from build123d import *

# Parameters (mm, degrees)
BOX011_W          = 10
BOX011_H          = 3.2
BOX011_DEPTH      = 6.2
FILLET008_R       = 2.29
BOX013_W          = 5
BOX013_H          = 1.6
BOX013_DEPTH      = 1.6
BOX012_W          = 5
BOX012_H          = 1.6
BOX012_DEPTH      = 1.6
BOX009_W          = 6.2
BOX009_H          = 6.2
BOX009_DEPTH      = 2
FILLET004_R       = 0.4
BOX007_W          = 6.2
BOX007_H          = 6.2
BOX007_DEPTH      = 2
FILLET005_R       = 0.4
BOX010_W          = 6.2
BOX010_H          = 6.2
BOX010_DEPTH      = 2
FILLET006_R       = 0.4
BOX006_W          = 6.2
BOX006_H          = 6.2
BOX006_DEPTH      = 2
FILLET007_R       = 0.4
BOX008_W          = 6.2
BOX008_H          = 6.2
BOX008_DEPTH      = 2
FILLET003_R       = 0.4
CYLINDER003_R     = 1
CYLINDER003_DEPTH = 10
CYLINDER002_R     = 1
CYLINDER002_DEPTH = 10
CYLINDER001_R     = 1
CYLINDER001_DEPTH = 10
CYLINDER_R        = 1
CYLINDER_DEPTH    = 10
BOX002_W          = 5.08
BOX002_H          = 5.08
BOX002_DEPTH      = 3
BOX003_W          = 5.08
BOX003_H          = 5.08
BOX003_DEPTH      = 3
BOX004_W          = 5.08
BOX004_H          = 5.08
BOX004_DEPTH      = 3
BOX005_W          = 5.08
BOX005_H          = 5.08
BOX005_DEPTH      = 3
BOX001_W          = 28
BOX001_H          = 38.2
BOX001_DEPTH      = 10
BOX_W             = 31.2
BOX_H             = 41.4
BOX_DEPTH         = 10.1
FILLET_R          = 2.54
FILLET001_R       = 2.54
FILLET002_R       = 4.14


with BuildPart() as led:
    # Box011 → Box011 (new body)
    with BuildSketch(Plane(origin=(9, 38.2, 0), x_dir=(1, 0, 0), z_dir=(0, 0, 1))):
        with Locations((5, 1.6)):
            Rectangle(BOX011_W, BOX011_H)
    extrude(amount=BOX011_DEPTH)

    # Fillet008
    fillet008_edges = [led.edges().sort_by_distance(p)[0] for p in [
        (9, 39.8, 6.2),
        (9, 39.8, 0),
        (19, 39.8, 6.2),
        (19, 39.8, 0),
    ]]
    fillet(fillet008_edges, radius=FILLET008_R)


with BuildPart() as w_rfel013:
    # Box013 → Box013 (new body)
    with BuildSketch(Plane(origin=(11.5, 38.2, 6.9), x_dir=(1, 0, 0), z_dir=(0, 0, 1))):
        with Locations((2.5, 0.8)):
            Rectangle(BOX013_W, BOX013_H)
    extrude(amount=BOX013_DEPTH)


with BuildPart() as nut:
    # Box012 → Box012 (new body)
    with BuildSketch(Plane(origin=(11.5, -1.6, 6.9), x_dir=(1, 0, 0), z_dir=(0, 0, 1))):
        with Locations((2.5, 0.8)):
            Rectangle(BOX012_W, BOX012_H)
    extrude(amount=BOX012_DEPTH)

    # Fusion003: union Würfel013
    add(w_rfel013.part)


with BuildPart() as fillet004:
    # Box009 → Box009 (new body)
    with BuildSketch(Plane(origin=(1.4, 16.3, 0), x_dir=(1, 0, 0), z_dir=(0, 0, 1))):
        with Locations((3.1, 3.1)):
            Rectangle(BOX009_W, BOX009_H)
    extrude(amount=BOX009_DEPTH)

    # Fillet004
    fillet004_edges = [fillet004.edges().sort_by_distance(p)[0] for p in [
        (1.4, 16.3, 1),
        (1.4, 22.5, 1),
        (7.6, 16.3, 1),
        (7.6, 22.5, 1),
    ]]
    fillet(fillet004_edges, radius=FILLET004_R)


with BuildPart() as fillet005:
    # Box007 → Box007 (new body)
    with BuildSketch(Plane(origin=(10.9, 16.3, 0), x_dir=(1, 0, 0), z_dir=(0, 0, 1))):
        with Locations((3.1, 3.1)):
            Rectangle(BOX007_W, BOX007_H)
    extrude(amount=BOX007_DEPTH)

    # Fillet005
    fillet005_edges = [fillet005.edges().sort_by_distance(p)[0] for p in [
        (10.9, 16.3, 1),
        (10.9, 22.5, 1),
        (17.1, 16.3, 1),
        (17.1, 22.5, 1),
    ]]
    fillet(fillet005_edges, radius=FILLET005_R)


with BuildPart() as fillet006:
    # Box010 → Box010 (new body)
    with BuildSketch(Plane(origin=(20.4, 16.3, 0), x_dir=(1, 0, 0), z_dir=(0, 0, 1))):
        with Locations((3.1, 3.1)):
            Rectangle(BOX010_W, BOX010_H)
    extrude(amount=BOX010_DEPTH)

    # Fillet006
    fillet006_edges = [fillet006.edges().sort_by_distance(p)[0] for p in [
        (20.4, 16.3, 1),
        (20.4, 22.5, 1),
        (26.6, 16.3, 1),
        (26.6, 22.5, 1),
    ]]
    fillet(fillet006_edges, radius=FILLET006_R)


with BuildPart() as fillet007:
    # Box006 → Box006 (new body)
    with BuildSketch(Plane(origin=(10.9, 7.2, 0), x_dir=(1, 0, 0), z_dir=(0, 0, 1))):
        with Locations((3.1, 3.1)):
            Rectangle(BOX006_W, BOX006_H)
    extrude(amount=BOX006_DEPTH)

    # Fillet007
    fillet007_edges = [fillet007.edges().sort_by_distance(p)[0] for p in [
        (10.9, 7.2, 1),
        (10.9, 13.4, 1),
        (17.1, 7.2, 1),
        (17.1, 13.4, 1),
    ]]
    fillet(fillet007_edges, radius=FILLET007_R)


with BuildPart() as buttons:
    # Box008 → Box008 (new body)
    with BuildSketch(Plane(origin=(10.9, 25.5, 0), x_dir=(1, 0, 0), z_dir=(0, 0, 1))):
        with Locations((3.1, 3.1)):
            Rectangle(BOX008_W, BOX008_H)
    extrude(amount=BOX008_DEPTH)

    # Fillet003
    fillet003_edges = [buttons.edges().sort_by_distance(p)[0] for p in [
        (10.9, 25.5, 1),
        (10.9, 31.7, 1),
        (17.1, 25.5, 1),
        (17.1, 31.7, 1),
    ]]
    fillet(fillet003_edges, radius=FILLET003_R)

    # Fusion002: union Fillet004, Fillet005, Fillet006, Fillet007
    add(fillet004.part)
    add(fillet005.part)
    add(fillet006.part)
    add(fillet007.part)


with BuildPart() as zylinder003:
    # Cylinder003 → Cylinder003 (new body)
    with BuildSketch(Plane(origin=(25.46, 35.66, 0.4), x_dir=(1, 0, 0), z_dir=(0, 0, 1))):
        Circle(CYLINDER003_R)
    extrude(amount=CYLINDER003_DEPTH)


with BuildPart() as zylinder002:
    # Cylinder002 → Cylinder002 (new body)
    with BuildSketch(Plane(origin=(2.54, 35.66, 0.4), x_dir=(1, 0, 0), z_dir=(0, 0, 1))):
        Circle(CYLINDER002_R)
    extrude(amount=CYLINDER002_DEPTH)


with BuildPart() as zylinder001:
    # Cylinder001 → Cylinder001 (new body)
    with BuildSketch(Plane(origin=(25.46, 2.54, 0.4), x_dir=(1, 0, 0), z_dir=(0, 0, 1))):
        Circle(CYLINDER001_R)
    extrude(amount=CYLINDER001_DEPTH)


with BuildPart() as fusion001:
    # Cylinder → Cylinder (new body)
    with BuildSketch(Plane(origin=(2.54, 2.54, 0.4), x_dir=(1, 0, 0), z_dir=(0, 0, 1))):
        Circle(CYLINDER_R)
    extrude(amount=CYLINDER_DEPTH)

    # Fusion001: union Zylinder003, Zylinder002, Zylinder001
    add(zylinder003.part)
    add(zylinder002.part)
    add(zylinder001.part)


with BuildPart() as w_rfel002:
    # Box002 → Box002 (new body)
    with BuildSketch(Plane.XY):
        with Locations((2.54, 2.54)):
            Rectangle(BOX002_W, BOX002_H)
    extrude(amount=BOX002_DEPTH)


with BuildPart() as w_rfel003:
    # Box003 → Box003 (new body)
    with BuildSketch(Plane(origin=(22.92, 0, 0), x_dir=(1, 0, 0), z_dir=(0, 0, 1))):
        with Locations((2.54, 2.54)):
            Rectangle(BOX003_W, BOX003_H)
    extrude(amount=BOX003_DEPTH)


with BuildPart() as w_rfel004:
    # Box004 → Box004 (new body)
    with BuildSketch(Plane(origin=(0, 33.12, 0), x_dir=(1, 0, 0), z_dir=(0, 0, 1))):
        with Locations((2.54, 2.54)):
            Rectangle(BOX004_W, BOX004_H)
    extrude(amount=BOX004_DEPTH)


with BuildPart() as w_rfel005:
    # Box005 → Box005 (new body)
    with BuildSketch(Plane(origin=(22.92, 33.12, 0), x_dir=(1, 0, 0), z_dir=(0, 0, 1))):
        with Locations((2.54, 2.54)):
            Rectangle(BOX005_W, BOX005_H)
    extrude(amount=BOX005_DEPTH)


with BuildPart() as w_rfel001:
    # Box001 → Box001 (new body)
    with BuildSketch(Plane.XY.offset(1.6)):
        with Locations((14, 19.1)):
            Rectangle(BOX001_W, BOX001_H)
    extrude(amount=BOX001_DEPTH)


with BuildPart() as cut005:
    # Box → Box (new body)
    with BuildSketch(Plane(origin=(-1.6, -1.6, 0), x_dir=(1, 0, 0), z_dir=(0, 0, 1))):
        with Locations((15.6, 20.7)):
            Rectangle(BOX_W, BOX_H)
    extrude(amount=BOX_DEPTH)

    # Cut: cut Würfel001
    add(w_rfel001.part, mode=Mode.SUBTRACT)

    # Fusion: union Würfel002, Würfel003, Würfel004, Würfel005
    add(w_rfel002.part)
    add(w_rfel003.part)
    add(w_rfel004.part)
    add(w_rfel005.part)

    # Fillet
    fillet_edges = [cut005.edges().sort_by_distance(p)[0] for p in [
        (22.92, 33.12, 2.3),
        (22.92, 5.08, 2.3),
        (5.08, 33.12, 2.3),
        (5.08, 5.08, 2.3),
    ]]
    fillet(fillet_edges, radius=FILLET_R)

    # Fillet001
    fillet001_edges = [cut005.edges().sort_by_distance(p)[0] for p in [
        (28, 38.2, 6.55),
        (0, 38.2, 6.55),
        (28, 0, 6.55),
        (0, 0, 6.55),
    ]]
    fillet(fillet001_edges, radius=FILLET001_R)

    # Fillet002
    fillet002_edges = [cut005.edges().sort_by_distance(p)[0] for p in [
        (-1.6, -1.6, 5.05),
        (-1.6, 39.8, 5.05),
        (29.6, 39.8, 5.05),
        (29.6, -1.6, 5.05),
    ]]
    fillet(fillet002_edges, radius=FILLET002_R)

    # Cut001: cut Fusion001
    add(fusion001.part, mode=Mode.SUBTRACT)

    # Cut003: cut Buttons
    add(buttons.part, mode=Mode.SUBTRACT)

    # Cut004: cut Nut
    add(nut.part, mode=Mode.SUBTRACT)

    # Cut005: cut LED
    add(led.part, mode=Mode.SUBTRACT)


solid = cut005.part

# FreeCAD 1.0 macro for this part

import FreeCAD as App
import Part
import Sketcher

V = App.Vector


def edges_at(feature, points):
    """Names of the edges that pass closest to the given points."""
    edges = feature.Shape.Edges
    near = lambda p: min(range(len(edges)), key=lambda i: edges[i].distToShape(Part.Vertex(*p))[0])
    return sorted({f"Edge{near(p) + 1}" for p in points})

doc = App.newDocument("Part")
body = doc.addObject("PartDesign::Body", "Body")

# Sketch on XY plane
sketch1 = doc.addObject("Sketcher::SketchObject", "Sketch")
body.addObject(sketch1)
sketch1.AttachmentSupport = (doc.XY_Plane, [""])
sketch1.MapMode = "FlatFace"
sketch1.addGeometry([
    Part.LineSegment(V(9, 41.4, 0), V(9, 38.2, 0)),
    Part.LineSegment(V(9, 38.2, 0), V(19, 38.2, 0)),
    Part.LineSegment(V(19, 38.2, 0), V(19, 41.4, 0)),
    Part.LineSegment(V(19, 41.4, 0), V(9, 41.4, 0)),
], False)
sketch1.addConstraint([
    Sketcher.Constraint("Coincident", 0, 2, 1, 1),
    Sketcher.Constraint("Coincident", 1, 2, 2, 1),
    Sketcher.Constraint("Coincident", 2, 2, 3, 1),
    Sketcher.Constraint("Coincident", 3, 2, 0, 1),
    Sketcher.Constraint("Vertical", 0),
    Sketcher.Constraint("Horizontal", 1),
    Sketcher.Constraint("Vertical", 2),
    Sketcher.Constraint("Horizontal", 3),
    Sketcher.Constraint("DistanceX", 1, 1, 1, 2, 10.0),
    Sketcher.Constraint("DistanceY", 0, 2, 0, 1, 3.2),
    Sketcher.Constraint("DistanceX", -1, 1, 0, 2, 9.0),
    Sketcher.Constraint("DistanceY", -1, 1, 0, 2, 38.2),
])
pad1 = doc.addObject("PartDesign::Pad", "Pad")
body.addObject(pad1)
pad1.Profile = sketch1
pad1.Length = 6.2
doc.recompute()

fillet = doc.addObject("PartDesign::Fillet", "Fillet")
body.addObject(fillet)
fillet.Base = (pad1, edges_at(pad1, [
    (9, 39.8, 6.2),
    (9, 39.8, 0),
    (19, 39.8, 6.2),
    (19, 39.8, 0),
]))
fillet.Radius = 2.29
body2 = doc.addObject("PartDesign::Body", "Body001")

# Sketch on XY plane
sketch2 = doc.addObject("Sketcher::SketchObject", "Sketch001")
body2.addObject(sketch2)
sketch2.AttachmentSupport = (doc.getObject("XY_Plane001"), [""])
sketch2.MapMode = "FlatFace"
sketch2.AttachmentOffset = App.Placement(V(0, 0, 6.9), App.Rotation())
sketch2.addGeometry([
    Part.LineSegment(V(11.5, 39.8, 0), V(11.5, 38.2, 0)),
    Part.LineSegment(V(11.5, 38.2, 0), V(16.5, 38.2, 0)),
    Part.LineSegment(V(16.5, 38.2, 0), V(16.5, 39.8, 0)),
    Part.LineSegment(V(16.5, 39.8, 0), V(11.5, 39.8, 0)),
], False)
sketch2.addConstraint([
    Sketcher.Constraint("Coincident", 0, 2, 1, 1),
    Sketcher.Constraint("Coincident", 1, 2, 2, 1),
    Sketcher.Constraint("Coincident", 2, 2, 3, 1),
    Sketcher.Constraint("Coincident", 3, 2, 0, 1),
    Sketcher.Constraint("Vertical", 0),
    Sketcher.Constraint("Horizontal", 1),
    Sketcher.Constraint("Vertical", 2),
    Sketcher.Constraint("Horizontal", 3),
    Sketcher.Constraint("DistanceX", 1, 1, 1, 2, 5.0),
    Sketcher.Constraint("DistanceY", 0, 2, 0, 1, 1.6),
    Sketcher.Constraint("DistanceX", -1, 1, 0, 2, 11.5),
    Sketcher.Constraint("DistanceY", -1, 1, 0, 2, 38.2),
])
pad2 = doc.addObject("PartDesign::Pad", "Pad001")
body2.addObject(pad2)
pad2.Profile = sketch2
pad2.Length = 1.6
body3 = doc.addObject("PartDesign::Body", "Body002")
body3.AllowCompound = True

# Sketch on XY plane
sketch3 = doc.addObject("Sketcher::SketchObject", "Sketch002")
body3.addObject(sketch3)
sketch3.AttachmentSupport = (doc.getObject("XY_Plane002"), [""])
sketch3.MapMode = "FlatFace"
sketch3.AttachmentOffset = App.Placement(V(0, 0, 6.9), App.Rotation())
sketch3.addGeometry([
    Part.LineSegment(V(11.5, 0, 0), V(11.5, -1.6, 0)),
    Part.LineSegment(V(11.5, -1.6, 0), V(16.5, -1.6, 0)),
    Part.LineSegment(V(16.5, -1.6, 0), V(16.5, 0, 0)),
    Part.LineSegment(V(16.5, 0, 0), V(11.5, 0, 0)),
], False)
sketch3.addConstraint([
    Sketcher.Constraint("Coincident", 0, 2, 1, 1),
    Sketcher.Constraint("Coincident", 1, 2, 2, 1),
    Sketcher.Constraint("Coincident", 2, 2, 3, 1),
    Sketcher.Constraint("Coincident", 3, 2, 0, 1),
    Sketcher.Constraint("Vertical", 0),
    Sketcher.Constraint("Horizontal", 1),
    Sketcher.Constraint("Vertical", 2),
    Sketcher.Constraint("Horizontal", 3),
    Sketcher.Constraint("PointOnObject", 2, 2, -1),
    Sketcher.Constraint("DistanceX", 1, 1, 1, 2, 5.0),
    Sketcher.Constraint("DistanceY", 0, 2, 0, 1, 1.6),
    Sketcher.Constraint("DistanceX", -1, 1, 0, 2, 11.5),
])
pad3 = doc.addObject("PartDesign::Pad", "Pad002")
body3.addObject(pad3)
pad3.Profile = sketch3
pad3.Length = 1.6
doc.recompute()

boolean = doc.addObject("PartDesign::Boolean", "Boolean")
body3.addObject(boolean)
boolean.Type = "Fuse"
boolean.addObjects([body2])
body4 = doc.addObject("PartDesign::Body", "Body003")

# Sketch on XY plane
sketch4 = doc.addObject("Sketcher::SketchObject", "Sketch003")
body4.addObject(sketch4)
sketch4.AttachmentSupport = (doc.getObject("XY_Plane003"), [""])
sketch4.MapMode = "FlatFace"
sketch4.addGeometry([
    Part.LineSegment(V(1, 22, 0), V(1, 16, 0)),
    Part.LineSegment(V(1, 16, 0), V(8, 16, 0)),
    Part.LineSegment(V(8, 16, 0), V(8, 22, 0)),
    Part.LineSegment(V(8, 22, 0), V(1, 22, 0)),
], False)
sketch4.addConstraint([
    Sketcher.Constraint("Coincident", 0, 2, 1, 1),
    Sketcher.Constraint("Coincident", 1, 2, 2, 1),
    Sketcher.Constraint("Coincident", 2, 2, 3, 1),
    Sketcher.Constraint("Coincident", 3, 2, 0, 1),
    Sketcher.Constraint("Vertical", 0),
    Sketcher.Constraint("Horizontal", 1),
    Sketcher.Constraint("Vertical", 2),
    Sketcher.Constraint("Horizontal", 3),
    Sketcher.Constraint("Equal", 3, 0),
    Sketcher.Constraint("DistanceX", 1, 1, 1, 2, 6.2),
    Sketcher.Constraint("DistanceX", -1, 1, 0, 2, 1.4),
    Sketcher.Constraint("DistanceY", -1, 1, 0, 2, 16.3),
])
pad4 = doc.addObject("PartDesign::Pad", "Pad003")
body4.addObject(pad4)
pad4.Profile = sketch4
pad4.Length = 2
doc.recompute()

fillet2 = doc.addObject("PartDesign::Fillet", "Fillet001")
body4.addObject(fillet2)
fillet2.Base = (pad4, edges_at(pad4, [
    (1.4, 16.3, 1),
    (1.4, 22.5, 1),
    (7.6, 16.3, 1),
    (7.6, 22.5, 1),
]))
fillet2.Radius = 0.4
body5 = doc.addObject("PartDesign::Body", "Body004")

# Sketch on XY plane
sketch5 = doc.addObject("Sketcher::SketchObject", "Sketch004")
body5.addObject(sketch5)
sketch5.AttachmentSupport = (doc.getObject("XY_Plane004"), [""])
sketch5.MapMode = "FlatFace"
sketch5.addGeometry([
    Part.LineSegment(V(11, 22, 0), V(11, 16, 0)),
    Part.LineSegment(V(11, 16, 0), V(17, 16, 0)),
    Part.LineSegment(V(17, 16, 0), V(17, 22, 0)),
    Part.LineSegment(V(17, 22, 0), V(11, 22, 0)),
], False)
sketch5.addConstraint([
    Sketcher.Constraint("Coincident", 0, 2, 1, 1),
    Sketcher.Constraint("Coincident", 1, 2, 2, 1),
    Sketcher.Constraint("Coincident", 2, 2, 3, 1),
    Sketcher.Constraint("Coincident", 3, 2, 0, 1),
    Sketcher.Constraint("Vertical", 0),
    Sketcher.Constraint("Horizontal", 1),
    Sketcher.Constraint("Vertical", 2),
    Sketcher.Constraint("Horizontal", 3),
    Sketcher.Constraint("Equal", 3, 0),
    Sketcher.Constraint("DistanceX", 1, 1, 1, 2, 6.2),
    Sketcher.Constraint("DistanceX", -1, 1, 0, 2, 10.9),
    Sketcher.Constraint("DistanceY", -1, 1, 0, 2, 16.3),
])
pad5 = doc.addObject("PartDesign::Pad", "Pad004")
body5.addObject(pad5)
pad5.Profile = sketch5
pad5.Length = 2
doc.recompute()

fillet3 = doc.addObject("PartDesign::Fillet", "Fillet002")
body5.addObject(fillet3)
fillet3.Base = (pad5, edges_at(pad5, [
    (10.9, 16.3, 1),
    (10.9, 22.5, 1),
    (17.1, 16.3, 1),
    (17.1, 22.5, 1),
]))
fillet3.Radius = 0.4
body6 = doc.addObject("PartDesign::Body", "Body005")

# Sketch on XY plane
sketch6 = doc.addObject("Sketcher::SketchObject", "Sketch005")
body6.addObject(sketch6)
sketch6.AttachmentSupport = (doc.getObject("XY_Plane005"), [""])
sketch6.MapMode = "FlatFace"
sketch6.addGeometry([
    Part.LineSegment(V(20, 22, 0), V(20, 16, 0)),
    Part.LineSegment(V(20, 16, 0), V(27, 16, 0)),
    Part.LineSegment(V(27, 16, 0), V(27, 22, 0)),
    Part.LineSegment(V(27, 22, 0), V(20, 22, 0)),
], False)
sketch6.addConstraint([
    Sketcher.Constraint("Coincident", 0, 2, 1, 1),
    Sketcher.Constraint("Coincident", 1, 2, 2, 1),
    Sketcher.Constraint("Coincident", 2, 2, 3, 1),
    Sketcher.Constraint("Coincident", 3, 2, 0, 1),
    Sketcher.Constraint("Vertical", 0),
    Sketcher.Constraint("Horizontal", 1),
    Sketcher.Constraint("Vertical", 2),
    Sketcher.Constraint("Horizontal", 3),
    Sketcher.Constraint("Equal", 3, 0),
    Sketcher.Constraint("DistanceX", 1, 1, 1, 2, 6.2),
    Sketcher.Constraint("DistanceX", -1, 1, 0, 2, 20.4),
    Sketcher.Constraint("DistanceY", -1, 1, 0, 2, 16.3),
])
pad6 = doc.addObject("PartDesign::Pad", "Pad005")
body6.addObject(pad6)
pad6.Profile = sketch6
pad6.Length = 2
doc.recompute()

fillet4 = doc.addObject("PartDesign::Fillet", "Fillet003")
body6.addObject(fillet4)
fillet4.Base = (pad6, edges_at(pad6, [
    (20.4, 16.3, 1),
    (20.4, 22.5, 1),
    (26.6, 16.3, 1),
    (26.6, 22.5, 1),
]))
fillet4.Radius = 0.4
body7 = doc.addObject("PartDesign::Body", "Body006")

# Sketch on XY plane
sketch7 = doc.addObject("Sketcher::SketchObject", "Sketch006")
body7.addObject(sketch7)
sketch7.AttachmentSupport = (doc.getObject("XY_Plane006"), [""])
sketch7.MapMode = "FlatFace"
sketch7.addGeometry([
    Part.LineSegment(V(11, 13, 0), V(11, 7, 0)),
    Part.LineSegment(V(11, 7, 0), V(17, 7, 0)),
    Part.LineSegment(V(17, 7, 0), V(17, 13, 0)),
    Part.LineSegment(V(17, 13, 0), V(11, 13, 0)),
], False)
sketch7.addConstraint([
    Sketcher.Constraint("Coincident", 0, 2, 1, 1),
    Sketcher.Constraint("Coincident", 1, 2, 2, 1),
    Sketcher.Constraint("Coincident", 2, 2, 3, 1),
    Sketcher.Constraint("Coincident", 3, 2, 0, 1),
    Sketcher.Constraint("Vertical", 0),
    Sketcher.Constraint("Horizontal", 1),
    Sketcher.Constraint("Vertical", 2),
    Sketcher.Constraint("Horizontal", 3),
    Sketcher.Constraint("Equal", 3, 0),
    Sketcher.Constraint("DistanceX", 1, 1, 1, 2, 6.2),
    Sketcher.Constraint("DistanceX", -1, 1, 0, 2, 10.9),
    Sketcher.Constraint("DistanceY", -1, 1, 0, 2, 7.2),
])
pad7 = doc.addObject("PartDesign::Pad", "Pad006")
body7.addObject(pad7)
pad7.Profile = sketch7
pad7.Length = 2
doc.recompute()

fillet5 = doc.addObject("PartDesign::Fillet", "Fillet004")
body7.addObject(fillet5)
fillet5.Base = (pad7, edges_at(pad7, [
    (10.9, 7.2, 1),
    (10.9, 13.4, 1),
    (17.1, 7.2, 1),
    (17.1, 13.4, 1),
]))
fillet5.Radius = 0.4
body8 = doc.addObject("PartDesign::Body", "Body007")
body8.AllowCompound = True

# Sketch on XY plane
sketch8 = doc.addObject("Sketcher::SketchObject", "Sketch007")
body8.addObject(sketch8)
sketch8.AttachmentSupport = (doc.getObject("XY_Plane007"), [""])
sketch8.MapMode = "FlatFace"
sketch8.addGeometry([
    Part.LineSegment(V(11, 32, 0), V(11, 26, 0)),
    Part.LineSegment(V(11, 26, 0), V(17, 26, 0)),
    Part.LineSegment(V(17, 26, 0), V(17, 32, 0)),
    Part.LineSegment(V(17, 32, 0), V(11, 32, 0)),
], False)
sketch8.addConstraint([
    Sketcher.Constraint("Coincident", 0, 2, 1, 1),
    Sketcher.Constraint("Coincident", 1, 2, 2, 1),
    Sketcher.Constraint("Coincident", 2, 2, 3, 1),
    Sketcher.Constraint("Coincident", 3, 2, 0, 1),
    Sketcher.Constraint("Vertical", 0),
    Sketcher.Constraint("Horizontal", 1),
    Sketcher.Constraint("Vertical", 2),
    Sketcher.Constraint("Horizontal", 3),
    Sketcher.Constraint("Equal", 3, 0),
    Sketcher.Constraint("DistanceX", 1, 1, 1, 2, 6.2),
    Sketcher.Constraint("DistanceX", -1, 1, 0, 2, 10.9),
    Sketcher.Constraint("DistanceY", -1, 1, 0, 2, 25.5),
])
pad8 = doc.addObject("PartDesign::Pad", "Pad007")
body8.addObject(pad8)
pad8.Profile = sketch8
pad8.Length = 2
doc.recompute()

fillet6 = doc.addObject("PartDesign::Fillet", "Fillet005")
body8.addObject(fillet6)
fillet6.Base = (pad8, edges_at(pad8, [
    (10.9, 25.5, 1),
    (10.9, 31.7, 1),
    (17.1, 25.5, 1),
    (17.1, 31.7, 1),
]))
fillet6.Radius = 0.4
doc.recompute()

boolean2 = doc.addObject("PartDesign::Boolean", "Boolean001")
body8.addObject(boolean2)
boolean2.Type = "Fuse"
boolean2.addObjects([body4])
doc.recompute()

boolean3 = doc.addObject("PartDesign::Boolean", "Boolean002")
body8.addObject(boolean3)
boolean3.Type = "Fuse"
boolean3.addObjects([body5])
doc.recompute()

boolean4 = doc.addObject("PartDesign::Boolean", "Boolean003")
body8.addObject(boolean4)
boolean4.Type = "Fuse"
boolean4.addObjects([body6])
doc.recompute()

boolean5 = doc.addObject("PartDesign::Boolean", "Boolean004")
body8.addObject(boolean5)
boolean5.Type = "Fuse"
boolean5.addObjects([body7])
body9 = doc.addObject("PartDesign::Body", "Body008")

# Sketch on XY plane
sketch9 = doc.addObject("Sketcher::SketchObject", "Sketch008")
body9.addObject(sketch9)
sketch9.AttachmentSupport = (doc.getObject("XY_Plane008"), [""])
sketch9.MapMode = "FlatFace"
sketch9.AttachmentOffset = App.Placement(V(0, 0, 0.4), App.Rotation())
sketch9.addGeometry(Part.Circle(V(25.5, 35.7, 0), V(0, 0, 1), 1), False)
sketch9.addConstraint([
    Sketcher.Constraint("Diameter", 0, 2.0),
    Sketcher.Constraint("DistanceX", -1, 1, 0, 3, 25.46),
    Sketcher.Constraint("DistanceY", -1, 1, 0, 3, 35.66),
])
pad9 = doc.addObject("PartDesign::Pad", "Pad008")
body9.addObject(pad9)
pad9.Profile = sketch9
pad9.Length = 10
body10 = doc.addObject("PartDesign::Body", "Body009")

# Sketch on XY plane
sketch10 = doc.addObject("Sketcher::SketchObject", "Sketch009")
body10.addObject(sketch10)
sketch10.AttachmentSupport = (doc.getObject("XY_Plane009"), [""])
sketch10.MapMode = "FlatFace"
sketch10.AttachmentOffset = App.Placement(V(0, 0, 0.4), App.Rotation())
sketch10.addGeometry(Part.Circle(V(2.5, 35.7, 0), V(0, 0, 1), 1), False)
sketch10.addConstraint([
    Sketcher.Constraint("Diameter", 0, 2.0),
    Sketcher.Constraint("DistanceX", -1, 1, 0, 3, 2.54),
    Sketcher.Constraint("DistanceY", -1, 1, 0, 3, 35.66),
])
pad10 = doc.addObject("PartDesign::Pad", "Pad009")
body10.addObject(pad10)
pad10.Profile = sketch10
pad10.Length = 10
body11 = doc.addObject("PartDesign::Body", "Body010")

# Sketch on XY plane
sketch11 = doc.addObject("Sketcher::SketchObject", "Sketch010")
body11.addObject(sketch11)
sketch11.AttachmentSupport = (doc.getObject("XY_Plane010"), [""])
sketch11.MapMode = "FlatFace"
sketch11.AttachmentOffset = App.Placement(V(0, 0, 0.4), App.Rotation())
sketch11.addGeometry(Part.Circle(V(25.5, 2.5, 0), V(0, 0, 1), 1), False)
sketch11.addConstraint([
    Sketcher.Constraint("Diameter", 0, 2.0),
    Sketcher.Constraint("DistanceX", -1, 1, 0, 3, 25.46),
    Sketcher.Constraint("DistanceY", -1, 1, 0, 3, 2.54),
])
pad11 = doc.addObject("PartDesign::Pad", "Pad010")
body11.addObject(pad11)
pad11.Profile = sketch11
pad11.Length = 10
body12 = doc.addObject("PartDesign::Body", "Body011")
body12.AllowCompound = True

# Sketch on XY plane
sketch12 = doc.addObject("Sketcher::SketchObject", "Sketch011")
body12.addObject(sketch12)
sketch12.AttachmentSupport = (doc.getObject("XY_Plane011"), [""])
sketch12.MapMode = "FlatFace"
sketch12.AttachmentOffset = App.Placement(V(0, 0, 0.4), App.Rotation())
sketch12.addGeometry(Part.Circle(V(2.5, 2.5, 0), V(0, 0, 1), 1), False)
sketch12.addConstraint([
    Sketcher.Constraint("Diameter", 0, 2.0),
    Sketcher.Constraint("DistanceX", -1, 1, 0, 3, 2.54),
    Sketcher.Constraint("DistanceY", -1, 1, 0, 3, 2.54),
])
pad12 = doc.addObject("PartDesign::Pad", "Pad011")
body12.addObject(pad12)
pad12.Profile = sketch12
pad12.Length = 10
doc.recompute()

boolean6 = doc.addObject("PartDesign::Boolean", "Boolean005")
body12.addObject(boolean6)
boolean6.Type = "Fuse"
boolean6.addObjects([body9])
doc.recompute()

boolean7 = doc.addObject("PartDesign::Boolean", "Boolean006")
body12.addObject(boolean7)
boolean7.Type = "Fuse"
boolean7.addObjects([body10])
doc.recompute()

boolean8 = doc.addObject("PartDesign::Boolean", "Boolean007")
body12.addObject(boolean8)
boolean8.Type = "Fuse"
boolean8.addObjects([body11])
body13 = doc.addObject("PartDesign::Body", "Body012")

# Sketch on XY plane
sketch13 = doc.addObject("Sketcher::SketchObject", "Sketch012")
body13.addObject(sketch13)
sketch13.AttachmentSupport = (doc.getObject("XY_Plane012"), [""])
sketch13.MapMode = "FlatFace"
sketch13.addGeometry([
    Part.LineSegment(V(0, 5, 0), V(0, 0, 0)),
    Part.LineSegment(V(0, 0, 0), V(5, 0, 0)),
    Part.LineSegment(V(5, 0, 0), V(5, 5, 0)),
    Part.LineSegment(V(5, 5, 0), V(0, 5, 0)),
], False)
sketch13.addConstraint([
    Sketcher.Constraint("Coincident", 0, 2, 1, 1),
    Sketcher.Constraint("Coincident", 1, 2, 2, 1),
    Sketcher.Constraint("Coincident", 2, 2, 3, 1),
    Sketcher.Constraint("Coincident", 3, 2, 0, 1),
    Sketcher.Constraint("Vertical", 0),
    Sketcher.Constraint("Horizontal", 1),
    Sketcher.Constraint("Vertical", 2),
    Sketcher.Constraint("Horizontal", 3),
    Sketcher.Constraint("Coincident", 0, 2, -1, 1),
    Sketcher.Constraint("Equal", 3, 0),
    Sketcher.Constraint("DistanceX", 1, 1, 1, 2, 5.08),
])
pad13 = doc.addObject("PartDesign::Pad", "Pad012")
body13.addObject(pad13)
pad13.Profile = sketch13
pad13.Length = 3
body14 = doc.addObject("PartDesign::Body", "Body013")

# Sketch on XY plane
sketch14 = doc.addObject("Sketcher::SketchObject", "Sketch013")
body14.addObject(sketch14)
sketch14.AttachmentSupport = (doc.getObject("XY_Plane013"), [""])
sketch14.MapMode = "FlatFace"
sketch14.addGeometry([
    Part.LineSegment(V(23, 5, 0), V(23, 0, 0)),
    Part.LineSegment(V(23, 0, 0), V(28, 0, 0)),
    Part.LineSegment(V(28, 0, 0), V(28, 5, 0)),
    Part.LineSegment(V(28, 5, 0), V(23, 5, 0)),
], False)
sketch14.addConstraint([
    Sketcher.Constraint("Coincident", 0, 2, 1, 1),
    Sketcher.Constraint("Coincident", 1, 2, 2, 1),
    Sketcher.Constraint("Coincident", 2, 2, 3, 1),
    Sketcher.Constraint("Coincident", 3, 2, 0, 1),
    Sketcher.Constraint("Vertical", 0),
    Sketcher.Constraint("Horizontal", 1),
    Sketcher.Constraint("Vertical", 2),
    Sketcher.Constraint("Horizontal", 3),
    Sketcher.Constraint("PointOnObject", 0, 2, -1),
    Sketcher.Constraint("Equal", 3, 0),
    Sketcher.Constraint("DistanceX", -1, 1, 1, 2, 28.0),
    Sketcher.Constraint("DistanceX", 1, 1, 1, 2, 5.08),
])
pad14 = doc.addObject("PartDesign::Pad", "Pad013")
body14.addObject(pad14)
pad14.Profile = sketch14
pad14.Length = 3
body15 = doc.addObject("PartDesign::Body", "Body014")

# Sketch on XY plane
sketch15 = doc.addObject("Sketcher::SketchObject", "Sketch014")
body15.addObject(sketch15)
sketch15.AttachmentSupport = (doc.getObject("XY_Plane014"), [""])
sketch15.MapMode = "FlatFace"
sketch15.addGeometry([
    Part.LineSegment(V(0, 38, 0), V(0, 33, 0)),
    Part.LineSegment(V(0, 33, 0), V(5, 33, 0)),
    Part.LineSegment(V(5, 33, 0), V(5, 38, 0)),
    Part.LineSegment(V(5, 38, 0), V(0, 38, 0)),
], False)
sketch15.addConstraint([
    Sketcher.Constraint("Coincident", 0, 2, 1, 1),
    Sketcher.Constraint("Coincident", 1, 2, 2, 1),
    Sketcher.Constraint("Coincident", 2, 2, 3, 1),
    Sketcher.Constraint("Coincident", 3, 2, 0, 1),
    Sketcher.Constraint("Vertical", 0),
    Sketcher.Constraint("Horizontal", 1),
    Sketcher.Constraint("Vertical", 2),
    Sketcher.Constraint("Horizontal", 3),
    Sketcher.Constraint("PointOnObject", 0, 2, -2),
    Sketcher.Constraint("Equal", 3, 0),
    Sketcher.Constraint("DistanceX", 1, 1, 1, 2, 5.08),
    Sketcher.Constraint("DistanceY", -1, 1, 2, 2, 38.2),
])
pad15 = doc.addObject("PartDesign::Pad", "Pad014")
body15.addObject(pad15)
pad15.Profile = sketch15
pad15.Length = 3
body16 = doc.addObject("PartDesign::Body", "Body015")

# Sketch on XY plane
sketch16 = doc.addObject("Sketcher::SketchObject", "Sketch015")
body16.addObject(sketch16)
sketch16.AttachmentSupport = (doc.getObject("XY_Plane015"), [""])
sketch16.MapMode = "FlatFace"
sketch16.addGeometry([
    Part.LineSegment(V(23, 38, 0), V(23, 33, 0)),
    Part.LineSegment(V(23, 33, 0), V(28, 33, 0)),
    Part.LineSegment(V(28, 33, 0), V(28, 38, 0)),
    Part.LineSegment(V(28, 38, 0), V(23, 38, 0)),
], False)
sketch16.addConstraint([
    Sketcher.Constraint("Coincident", 0, 2, 1, 1),
    Sketcher.Constraint("Coincident", 1, 2, 2, 1),
    Sketcher.Constraint("Coincident", 2, 2, 3, 1),
    Sketcher.Constraint("Coincident", 3, 2, 0, 1),
    Sketcher.Constraint("Vertical", 0),
    Sketcher.Constraint("Horizontal", 1),
    Sketcher.Constraint("Vertical", 2),
    Sketcher.Constraint("Horizontal", 3),
    Sketcher.Constraint("Equal", 3, 0),
    Sketcher.Constraint("DistanceX", -1, 1, 1, 2, 28.0),
    Sketcher.Constraint("DistanceX", 1, 1, 1, 2, 5.08),
    Sketcher.Constraint("DistanceY", -1, 1, 2, 2, 38.2),
])
pad16 = doc.addObject("PartDesign::Pad", "Pad015")
body16.addObject(pad16)
pad16.Profile = sketch16
pad16.Length = 3
body17 = doc.addObject("PartDesign::Body", "Body016")

# Sketch on XY plane
sketch17 = doc.addObject("Sketcher::SketchObject", "Sketch016")
body17.addObject(sketch17)
sketch17.AttachmentSupport = (doc.getObject("XY_Plane016"), [""])
sketch17.MapMode = "FlatFace"
sketch17.AttachmentOffset = App.Placement(V(0, 0, 1.6), App.Rotation())
sketch17.addGeometry([
    Part.LineSegment(V(0, 38, 0), V(0, 0, 0)),
    Part.LineSegment(V(0, 0, 0), V(28, 0, 0)),
    Part.LineSegment(V(28, 0, 0), V(28, 38, 0)),
    Part.LineSegment(V(28, 38, 0), V(0, 38, 0)),
], False)
sketch17.addConstraint([
    Sketcher.Constraint("Coincident", 0, 2, 1, 1),
    Sketcher.Constraint("Coincident", 1, 2, 2, 1),
    Sketcher.Constraint("Coincident", 2, 2, 3, 1),
    Sketcher.Constraint("Coincident", 3, 2, 0, 1),
    Sketcher.Constraint("Vertical", 0),
    Sketcher.Constraint("Horizontal", 1),
    Sketcher.Constraint("Vertical", 2),
    Sketcher.Constraint("Horizontal", 3),
    Sketcher.Constraint("Coincident", 0, 2, -1, 1),
    Sketcher.Constraint("DistanceX", 1, 1, 1, 2, 28.0),
    Sketcher.Constraint("DistanceY", 0, 2, 0, 1, 38.2),
])
pad17 = doc.addObject("PartDesign::Pad", "Pad016")
body17.addObject(pad17)
pad17.Profile = sketch17
pad17.Length = 10
body18 = doc.addObject("PartDesign::Body", "Body017")

# Sketch on XY plane
sketch18 = doc.addObject("Sketcher::SketchObject", "Sketch017")
body18.addObject(sketch18)
sketch18.AttachmentSupport = (doc.getObject("XY_Plane017"), [""])
sketch18.MapMode = "FlatFace"
sketch18.addGeometry([
    Part.LineSegment(V(-2, 40, 0), V(-2, -2, 0)),
    Part.LineSegment(V(-2, -2, 0), V(30, -2, 0)),
    Part.LineSegment(V(30, -2, 0), V(30, 40, 0)),
    Part.LineSegment(V(30, 40, 0), V(-2, 40, 0)),
], False)
sketch18.addConstraint([
    Sketcher.Constraint("Coincident", 0, 2, 1, 1),
    Sketcher.Constraint("Coincident", 1, 2, 2, 1),
    Sketcher.Constraint("Coincident", 2, 2, 3, 1),
    Sketcher.Constraint("Coincident", 3, 2, 0, 1),
    Sketcher.Constraint("Vertical", 0),
    Sketcher.Constraint("Horizontal", 1),
    Sketcher.Constraint("Vertical", 2),
    Sketcher.Constraint("Horizontal", 3),
    Sketcher.Constraint("DistanceX", 1, 1, 1, 2, 31.2),
    Sketcher.Constraint("DistanceY", 0, 2, 0, 1, 41.4),
    Sketcher.Constraint("DistanceX", 0, 2, -1, 1, 1.6),
    Sketcher.Constraint("DistanceY", 0, 2, -1, 1, 1.6),
])
pad18 = doc.addObject("PartDesign::Pad", "Pad017")
body18.addObject(pad18)
pad18.Profile = sketch18
pad18.Length = 10.1
doc.recompute()

boolean9 = doc.addObject("PartDesign::Boolean", "Boolean008")
body18.addObject(boolean9)
boolean9.Type = "Cut"
boolean9.addObjects([body17])
doc.recompute()

boolean10 = doc.addObject("PartDesign::Boolean", "Boolean009")
body18.addObject(boolean10)
boolean10.Type = "Fuse"
boolean10.addObjects([body13])
doc.recompute()

boolean11 = doc.addObject("PartDesign::Boolean", "Boolean010")
body18.addObject(boolean11)
boolean11.Type = "Fuse"
boolean11.addObjects([body14])
doc.recompute()

boolean12 = doc.addObject("PartDesign::Boolean", "Boolean011")
body18.addObject(boolean12)
boolean12.Type = "Fuse"
boolean12.addObjects([body15])
doc.recompute()

boolean13 = doc.addObject("PartDesign::Boolean", "Boolean012")
body18.addObject(boolean13)
boolean13.Type = "Fuse"
boolean13.addObjects([body16])
doc.recompute()

fillet7 = doc.addObject("PartDesign::Fillet", "Fillet006")
body18.addObject(fillet7)
fillet7.Base = (boolean13, edges_at(boolean13, [
    (22.92, 33.12, 2.3),
    (22.92, 5.08, 2.3),
    (5.08, 33.12, 2.3),
    (5.08, 5.08, 2.3),
]))
fillet7.Radius = 2.54
doc.recompute()

fillet8 = doc.addObject("PartDesign::Fillet", "Fillet007")
body18.addObject(fillet8)
fillet8.Base = (fillet7, edges_at(fillet7, [
    (28, 38.2, 6.55),
    (0, 38.2, 6.55),
    (28, 0, 6.55),
    (0, 0, 6.55),
]))
fillet8.Radius = 2.54
doc.recompute()

fillet9 = doc.addObject("PartDesign::Fillet", "Fillet008")
body18.addObject(fillet9)
fillet9.Base = (fillet8, edges_at(fillet8, [
    (-1.6, -1.6, 5.05),
    (-1.6, 39.8, 5.05),
    (29.6, 39.8, 5.05),
    (29.6, -1.6, 5.05),
]))
fillet9.Radius = 4.14
doc.recompute()

boolean14 = doc.addObject("PartDesign::Boolean", "Boolean013")
body18.addObject(boolean14)
boolean14.Type = "Cut"
boolean14.addObjects([body12])
doc.recompute()

boolean15 = doc.addObject("PartDesign::Boolean", "Boolean014")
body18.addObject(boolean15)
boolean15.Type = "Cut"
boolean15.addObjects([body8])
doc.recompute()

boolean16 = doc.addObject("PartDesign::Boolean", "Boolean015")
body18.addObject(boolean16)
boolean16.Type = "Cut"
boolean16.addObjects([body3])
doc.recompute()

boolean17 = doc.addObject("PartDesign::Boolean", "Boolean016")
body18.addObject(boolean17)
boolean17.Type = "Cut"
boolean17.addObjects([body])

doc.recompute()
